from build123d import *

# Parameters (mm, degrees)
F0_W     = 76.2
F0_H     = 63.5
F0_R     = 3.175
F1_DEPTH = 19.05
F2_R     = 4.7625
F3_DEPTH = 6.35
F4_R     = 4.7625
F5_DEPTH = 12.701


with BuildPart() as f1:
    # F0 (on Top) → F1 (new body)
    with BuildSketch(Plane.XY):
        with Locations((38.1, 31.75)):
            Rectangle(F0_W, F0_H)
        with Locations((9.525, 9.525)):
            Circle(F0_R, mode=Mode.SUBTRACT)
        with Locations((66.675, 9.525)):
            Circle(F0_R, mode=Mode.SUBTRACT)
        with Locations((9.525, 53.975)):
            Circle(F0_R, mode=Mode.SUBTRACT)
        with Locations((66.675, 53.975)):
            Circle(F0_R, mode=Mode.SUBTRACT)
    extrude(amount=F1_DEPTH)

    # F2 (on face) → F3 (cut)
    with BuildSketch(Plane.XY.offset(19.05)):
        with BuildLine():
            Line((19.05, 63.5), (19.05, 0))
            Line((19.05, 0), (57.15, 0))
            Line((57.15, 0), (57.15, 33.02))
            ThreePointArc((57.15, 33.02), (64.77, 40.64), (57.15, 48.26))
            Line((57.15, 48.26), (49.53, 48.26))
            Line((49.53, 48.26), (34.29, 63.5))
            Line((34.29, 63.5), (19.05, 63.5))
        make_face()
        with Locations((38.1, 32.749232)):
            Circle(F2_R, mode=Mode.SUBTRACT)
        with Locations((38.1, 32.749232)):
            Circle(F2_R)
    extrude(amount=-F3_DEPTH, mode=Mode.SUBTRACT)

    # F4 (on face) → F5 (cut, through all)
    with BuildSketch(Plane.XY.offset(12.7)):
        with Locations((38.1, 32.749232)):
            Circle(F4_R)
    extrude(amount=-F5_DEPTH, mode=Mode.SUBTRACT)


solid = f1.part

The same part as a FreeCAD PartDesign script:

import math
import FreeCAD as App
import Part
import Sketcher
Q = App.Units.Quantity


def add_polygon(sketch, points):
    """Adds a closed chain of lines whose ends are joined by coincident constraints."""
    first, n = sketch.GeometryCount, len(points)
    for a, b in zip(points, points[1:] + points[:1]):
        sketch.addGeometry(Part.LineSegment(App.Vector(*a, 0), App.Vector(*b, 0)), False)
    for i in range(n):
        sketch.addConstraint(Sketcher.Constraint("Coincident", first + i, 2, first + (i + 1) % n, 1))

doc = App.newDocument("Part")
params = doc.addObject("Spreadsheet::Sheet", "Params")
for row, (alias, value) in enumerate([
    ("sketch1_diameter", "0.25 in"),
    ("sketch1_width", "3 in"),
    ("sketch1_height", "2.5 in"),
    ("pad1_length", "0.75 in"),
    ("sketch2_radius", "0.3 in"),
    ("sketch2_width", "1.5 in"),
    ("sketch2_width2", "0.3 in"),
    ("sketch2_width3", "0.6 in"),
    ("sketch2_height", "2.5 in"),
    ("pocket1_length", "0.25 in"),
    ("sketch3_diameter", "0.375 in"),
], start=1):
    params.set(f"A{row}", alias)
    params.set(f"B{row}", "=" + value)
    params.setAlias(f"B{row}", alias)

body = doc.addObject("PartDesign::Body", "Body")

sketch1 = body.newObject("Sketcher::SketchObject", "Sketch")
sketch1.AttachmentSupport = (doc.getObject("XY_Plane"), [""])
sketch1.MapMode = "FlatFace"
add_polygon(sketch1, [(0, 63.5), (0, 0), (76.2, 0), (76.2, 63.5)])
sketch1.addGeometry(Part.Circle(App.Vector(9.525, 9.525, 0), App.Vector(0, 0, 1), 3.175), False)
sketch1.addGeometry(Part.Circle(App.Vector(66.675, 9.525, 0), App.Vector(0, 0, 1), 3.175), False)
sketch1.addGeometry(Part.Circle(App.Vector(9.525, 53.975, 0), App.Vector(0, 0, 1), 3.175), False)
sketch1.addGeometry(Part.Circle(App.Vector(66.675, 53.975, 0), App.Vector(0, 0, 1), 3.175), False)
sketch1.addConstraint(Sketcher.Constraint("Vertical", 0))
sketch1.addConstraint(Sketcher.Constraint("Horizontal", 1))
sketch1.addConstraint(Sketcher.Constraint("Vertical", 2))
sketch1.addConstraint(Sketcher.Constraint("Horizontal", 3))
sketch1.addConstraint(Sketcher.Constraint("Coincident", 0, 2, -1, 1))
sketch1.addConstraint(Sketcher.Constraint("Equal", 4, 5))
sketch1.addConstraint(Sketcher.Constraint("Equal", 5, 6))
sketch1.addConstraint(Sketcher.Constraint("Equal", 6, 7))
sketch1.addConstraint(Sketcher.Constraint("Horizontal", 4, 3, 5, 3))
sketch1.addConstraint(Sketcher.Constraint("Horizontal", 6, 3, 7, 3))
sketch1.addConstraint(Sketcher.Constraint("Vertical", 4, 3, 6, 3))
sketch1.addConstraint(Sketcher.Constraint("Vertical", 5, 3, 7, 3))
sketch1.addConstraint(Sketcher.Constraint("Diameter", 4, Q("0.25 in")))
sketch1.addConstraint(Sketcher.Constraint("DistanceX", 1, 1, 1, 2, Q("3 in")))
sketch1.addConstraint(Sketcher.Constraint("DistanceY", 0, 2, 0, 1, Q("2.5 in")))
sketch1.addConstraint(Sketcher.Constraint("DistanceX", 4, 3, 5, 3, Q("2.25 in")))
sketch1.addConstraint(Sketcher.Constraint("DistanceY", 4, 3, 6, 3, Q("1.75 in")))
sketch1.addConstraint(Sketcher.Constraint("DistanceX", -1, 1, 4, 3, Q("0.375 in")))
sketch1.addConstraint(Sketcher.Constraint("DistanceY", -1, 1, 4, 3, Q("0.375 in")))
sketch1.setExpression("Constraints[16]", "Params.sketch1_diameter")
sketch1.setExpression("Constraints[17]", "Params.sketch1_width")
sketch1.setExpression("Constraints[18]", "Params.sketch1_height")
pad1 = body.newObject("PartDesign::Pad", "Pad")
pad1.Profile = sketch1
pad1.setExpression("Length", "Params.pad1_length")

sketch2 = body.newObject("Sketcher::SketchObject", "Sketch001")
sketch2.AttachmentSupport = (doc.getObject("XY_Plane"), [""])
sketch2.MapMode = "FlatFace"
sketch2.AttachmentOffset = App.Placement(App.Vector(0, 0, 0.75 * 25.4), App.Rotation())
sketch2.addGeometry(Part.LineSegment(App.Vector(19.05, 63.5, 0), App.Vector(19.05, 0, 0)), False)
sketch2.addGeometry(Part.LineSegment(App.Vector(19.05, 0, 0), App.Vector(57.15, 0, 0)), False)
sketch2.addGeometry(Part.LineSegment(App.Vector(57.15, 0, 0), App.Vector(57.15, 33.02, 0)), False)
sketch2.addGeometry(Part.ArcOfCircle(Part.Circle(App.Vector(57.15, 40.64, 0), App.Vector(0, 0, 1), 7.62), math.radians(-90), math.radians(90)), False)
sketch2.addGeometry(Part.LineSegment(App.Vector(57.15, 48.26, 0), App.Vector(49.53, 48.26, 0)), False)
sketch2.addGeometry(Part.LineSegment(App.Vector(49.53, 48.26, 0), App.Vector(34.29, 63.5, 0)), False)
sketch2.addGeometry(Part.LineSegment(App.Vector(34.29, 63.5, 0), App.Vector(19.05, 63.5, 0)), False)
sketch2.addConstraint(Sketcher.Constraint("Coincident", 0, 2, 1, 1))
sketch2.addConstraint(Sketcher.Constraint("Coincident", 1, 2, 2, 1))
sketch2.addConstraint(Sketcher.Constraint("Coincident", 2, 2, 3, 1))
sketch2.addConstraint(Sketcher.Constraint("Tangent", 3, 2, 4, 1))
sketch2.addConstraint(Sketcher.Constraint("Coincident", 4, 2, 5, 1))
sketch2.addConstraint(Sketcher.Constraint("Coincident", 5, 2, 6, 1))
sketch2.addConstraint(Sketcher.Constraint("Coincident", 6, 2, 0, 1))
sketch2.addConstraint(Sketcher.Constraint("Vertical", 0))
sketch2.addConstraint(Sketcher.Constraint("Horizontal", 1))
sketch2.addConstraint(Sketcher.Constraint("Vertical", 2))
sketch2.addConstraint(Sketcher.Constraint("Horizontal", 4))
sketch2.addConstraint(Sketcher.Constraint("Horizontal", 6))
sketch2.addConstraint(Sketcher.Constraint("PointOnObject", 0, 2, -1))
sketch2.addConstraint(Sketcher.Constraint("Vertical", 3, 3, 1, 2))
sketch2.addConstraint(Sketcher.Constraint("Radius", 3, Q("0.3 in")))
sketch2.addConstraint(Sketcher.Constraint("DistanceX", 1, 1, 1, 2, Q("1.5 in")))
sketch2.addConstraint(Sketcher.Constraint("DistanceX", 4, 2, 4, 1, Q("0.3 in")))
sketch2.addConstraint(Sketcher.Constraint("DistanceX", 6, 2, 6, 1, Q("0.6 in")))
sketch2.addConstraint(Sketcher.Constraint("DistanceY", 0, 2, 0, 1, Q("2.5 in")))
sketch2.addConstraint(Sketcher.Constraint("DistanceY", 2, 1, 2, 2, Q("1.3 in")))
sketch2.addConstraint(Sketcher.Constraint("DistanceX", -1, 1, 3, 3, Q("2.25 in")))
sketch2.setExpression("Constraints[14]", "Params.sketch2_radius")
sketch2.setExpression("Constraints[15]", "Params.sketch2_width")
sketch2.setExpression("Constraints[16]", "Params.sketch2_width2")
sketch2.setExpression("Constraints[17]", "Params.sketch2_width3")
sketch2.setExpression("Constraints[18]", "Params.sketch2_height")
pocket1 = body.newObject("PartDesign::Pocket", "Pocket")
pocket1.Profile = sketch2
pocket1.setExpression("Length", "Params.pocket1_length")

sketch3 = body.newObject("Sketcher::SketchObject", "Sketch002")
sketch3.AttachmentSupport = (doc.getObject("XY_Plane"), [""])
sketch3.MapMode = "FlatFace"
sketch3.AttachmentOffset = App.Placement(App.Vector(0, 0, 0.5 * 25.4), App.Rotation())
sketch3.addGeometry(Part.Circle(App.Vector(38.1, 32.749232, 0), App.Vector(0, 0, 1), 4.7625), False)
sketch3.addConstraint(Sketcher.Constraint("Diameter", 0, Q("0.375 in")))
sketch3.addConstraint(Sketcher.Constraint("DistanceX", -1, 1, 0, 3, Q("1.5 in")))
sketch3.addConstraint(Sketcher.Constraint("DistanceY", -1, 1, 0, 3, Q("32.749232 mm")))
sketch3.setExpression("Constraints[0]", "Params.sketch3_diameter")
pocket2 = body.newObject("PartDesign::Pocket", "Pocket001")
pocket2.Profile = sketch3
pocket2.Type = "ThroughAll"

doc.recompute()
